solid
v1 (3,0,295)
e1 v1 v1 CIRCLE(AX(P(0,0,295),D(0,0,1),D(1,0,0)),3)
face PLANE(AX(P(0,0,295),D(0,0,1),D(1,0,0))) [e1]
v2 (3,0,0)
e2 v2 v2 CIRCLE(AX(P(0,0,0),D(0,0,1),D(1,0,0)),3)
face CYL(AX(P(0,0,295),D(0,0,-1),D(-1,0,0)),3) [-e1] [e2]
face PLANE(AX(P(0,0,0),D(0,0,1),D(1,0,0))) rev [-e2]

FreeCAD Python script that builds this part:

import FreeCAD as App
import Part
import Sketcher

V = App.Vector

doc = App.newDocument("Part")
params = doc.addObject("Spreadsheet::Sheet", "Params")
for row, (alias, value) in enumerate([
    ("sketch1_diameter", "6 mm"),
    ("pad1_length", "295 mm"),
], start=1):
    params.set(f"A{row}", alias)
    params.set(f"B{row}", "=" + value)
    params.setAlias(f"B{row}", alias)

body = doc.addObject("PartDesign::Body", "Body")

sketch1 = body.newObject("Sketcher::SketchObject", "Sketch")
sketch1.AttachmentSupport = (doc.getObject("XY_Plane"), [""])
sketch1.MapMode = "FlatFace"
sketch1.addGeometry(Part.Circle(V(0, 0, 0), V(0, 0, 1), 3), False)
sketch1.addConstraint([
    Sketcher.Constraint("Coincident", 0, 3, -1, 1),
    Sketcher.Constraint("Diameter", 0, 6.0),
])
sketch1.setExpression("Constraints[1]", "Params.sketch1_diameter")
pad1 = body.newObject("PartDesign::Pad", "Pad")
pad1.Profile = sketch1
pad1.setExpression("Length", "Params.pad1_length")

doc.recompute()
